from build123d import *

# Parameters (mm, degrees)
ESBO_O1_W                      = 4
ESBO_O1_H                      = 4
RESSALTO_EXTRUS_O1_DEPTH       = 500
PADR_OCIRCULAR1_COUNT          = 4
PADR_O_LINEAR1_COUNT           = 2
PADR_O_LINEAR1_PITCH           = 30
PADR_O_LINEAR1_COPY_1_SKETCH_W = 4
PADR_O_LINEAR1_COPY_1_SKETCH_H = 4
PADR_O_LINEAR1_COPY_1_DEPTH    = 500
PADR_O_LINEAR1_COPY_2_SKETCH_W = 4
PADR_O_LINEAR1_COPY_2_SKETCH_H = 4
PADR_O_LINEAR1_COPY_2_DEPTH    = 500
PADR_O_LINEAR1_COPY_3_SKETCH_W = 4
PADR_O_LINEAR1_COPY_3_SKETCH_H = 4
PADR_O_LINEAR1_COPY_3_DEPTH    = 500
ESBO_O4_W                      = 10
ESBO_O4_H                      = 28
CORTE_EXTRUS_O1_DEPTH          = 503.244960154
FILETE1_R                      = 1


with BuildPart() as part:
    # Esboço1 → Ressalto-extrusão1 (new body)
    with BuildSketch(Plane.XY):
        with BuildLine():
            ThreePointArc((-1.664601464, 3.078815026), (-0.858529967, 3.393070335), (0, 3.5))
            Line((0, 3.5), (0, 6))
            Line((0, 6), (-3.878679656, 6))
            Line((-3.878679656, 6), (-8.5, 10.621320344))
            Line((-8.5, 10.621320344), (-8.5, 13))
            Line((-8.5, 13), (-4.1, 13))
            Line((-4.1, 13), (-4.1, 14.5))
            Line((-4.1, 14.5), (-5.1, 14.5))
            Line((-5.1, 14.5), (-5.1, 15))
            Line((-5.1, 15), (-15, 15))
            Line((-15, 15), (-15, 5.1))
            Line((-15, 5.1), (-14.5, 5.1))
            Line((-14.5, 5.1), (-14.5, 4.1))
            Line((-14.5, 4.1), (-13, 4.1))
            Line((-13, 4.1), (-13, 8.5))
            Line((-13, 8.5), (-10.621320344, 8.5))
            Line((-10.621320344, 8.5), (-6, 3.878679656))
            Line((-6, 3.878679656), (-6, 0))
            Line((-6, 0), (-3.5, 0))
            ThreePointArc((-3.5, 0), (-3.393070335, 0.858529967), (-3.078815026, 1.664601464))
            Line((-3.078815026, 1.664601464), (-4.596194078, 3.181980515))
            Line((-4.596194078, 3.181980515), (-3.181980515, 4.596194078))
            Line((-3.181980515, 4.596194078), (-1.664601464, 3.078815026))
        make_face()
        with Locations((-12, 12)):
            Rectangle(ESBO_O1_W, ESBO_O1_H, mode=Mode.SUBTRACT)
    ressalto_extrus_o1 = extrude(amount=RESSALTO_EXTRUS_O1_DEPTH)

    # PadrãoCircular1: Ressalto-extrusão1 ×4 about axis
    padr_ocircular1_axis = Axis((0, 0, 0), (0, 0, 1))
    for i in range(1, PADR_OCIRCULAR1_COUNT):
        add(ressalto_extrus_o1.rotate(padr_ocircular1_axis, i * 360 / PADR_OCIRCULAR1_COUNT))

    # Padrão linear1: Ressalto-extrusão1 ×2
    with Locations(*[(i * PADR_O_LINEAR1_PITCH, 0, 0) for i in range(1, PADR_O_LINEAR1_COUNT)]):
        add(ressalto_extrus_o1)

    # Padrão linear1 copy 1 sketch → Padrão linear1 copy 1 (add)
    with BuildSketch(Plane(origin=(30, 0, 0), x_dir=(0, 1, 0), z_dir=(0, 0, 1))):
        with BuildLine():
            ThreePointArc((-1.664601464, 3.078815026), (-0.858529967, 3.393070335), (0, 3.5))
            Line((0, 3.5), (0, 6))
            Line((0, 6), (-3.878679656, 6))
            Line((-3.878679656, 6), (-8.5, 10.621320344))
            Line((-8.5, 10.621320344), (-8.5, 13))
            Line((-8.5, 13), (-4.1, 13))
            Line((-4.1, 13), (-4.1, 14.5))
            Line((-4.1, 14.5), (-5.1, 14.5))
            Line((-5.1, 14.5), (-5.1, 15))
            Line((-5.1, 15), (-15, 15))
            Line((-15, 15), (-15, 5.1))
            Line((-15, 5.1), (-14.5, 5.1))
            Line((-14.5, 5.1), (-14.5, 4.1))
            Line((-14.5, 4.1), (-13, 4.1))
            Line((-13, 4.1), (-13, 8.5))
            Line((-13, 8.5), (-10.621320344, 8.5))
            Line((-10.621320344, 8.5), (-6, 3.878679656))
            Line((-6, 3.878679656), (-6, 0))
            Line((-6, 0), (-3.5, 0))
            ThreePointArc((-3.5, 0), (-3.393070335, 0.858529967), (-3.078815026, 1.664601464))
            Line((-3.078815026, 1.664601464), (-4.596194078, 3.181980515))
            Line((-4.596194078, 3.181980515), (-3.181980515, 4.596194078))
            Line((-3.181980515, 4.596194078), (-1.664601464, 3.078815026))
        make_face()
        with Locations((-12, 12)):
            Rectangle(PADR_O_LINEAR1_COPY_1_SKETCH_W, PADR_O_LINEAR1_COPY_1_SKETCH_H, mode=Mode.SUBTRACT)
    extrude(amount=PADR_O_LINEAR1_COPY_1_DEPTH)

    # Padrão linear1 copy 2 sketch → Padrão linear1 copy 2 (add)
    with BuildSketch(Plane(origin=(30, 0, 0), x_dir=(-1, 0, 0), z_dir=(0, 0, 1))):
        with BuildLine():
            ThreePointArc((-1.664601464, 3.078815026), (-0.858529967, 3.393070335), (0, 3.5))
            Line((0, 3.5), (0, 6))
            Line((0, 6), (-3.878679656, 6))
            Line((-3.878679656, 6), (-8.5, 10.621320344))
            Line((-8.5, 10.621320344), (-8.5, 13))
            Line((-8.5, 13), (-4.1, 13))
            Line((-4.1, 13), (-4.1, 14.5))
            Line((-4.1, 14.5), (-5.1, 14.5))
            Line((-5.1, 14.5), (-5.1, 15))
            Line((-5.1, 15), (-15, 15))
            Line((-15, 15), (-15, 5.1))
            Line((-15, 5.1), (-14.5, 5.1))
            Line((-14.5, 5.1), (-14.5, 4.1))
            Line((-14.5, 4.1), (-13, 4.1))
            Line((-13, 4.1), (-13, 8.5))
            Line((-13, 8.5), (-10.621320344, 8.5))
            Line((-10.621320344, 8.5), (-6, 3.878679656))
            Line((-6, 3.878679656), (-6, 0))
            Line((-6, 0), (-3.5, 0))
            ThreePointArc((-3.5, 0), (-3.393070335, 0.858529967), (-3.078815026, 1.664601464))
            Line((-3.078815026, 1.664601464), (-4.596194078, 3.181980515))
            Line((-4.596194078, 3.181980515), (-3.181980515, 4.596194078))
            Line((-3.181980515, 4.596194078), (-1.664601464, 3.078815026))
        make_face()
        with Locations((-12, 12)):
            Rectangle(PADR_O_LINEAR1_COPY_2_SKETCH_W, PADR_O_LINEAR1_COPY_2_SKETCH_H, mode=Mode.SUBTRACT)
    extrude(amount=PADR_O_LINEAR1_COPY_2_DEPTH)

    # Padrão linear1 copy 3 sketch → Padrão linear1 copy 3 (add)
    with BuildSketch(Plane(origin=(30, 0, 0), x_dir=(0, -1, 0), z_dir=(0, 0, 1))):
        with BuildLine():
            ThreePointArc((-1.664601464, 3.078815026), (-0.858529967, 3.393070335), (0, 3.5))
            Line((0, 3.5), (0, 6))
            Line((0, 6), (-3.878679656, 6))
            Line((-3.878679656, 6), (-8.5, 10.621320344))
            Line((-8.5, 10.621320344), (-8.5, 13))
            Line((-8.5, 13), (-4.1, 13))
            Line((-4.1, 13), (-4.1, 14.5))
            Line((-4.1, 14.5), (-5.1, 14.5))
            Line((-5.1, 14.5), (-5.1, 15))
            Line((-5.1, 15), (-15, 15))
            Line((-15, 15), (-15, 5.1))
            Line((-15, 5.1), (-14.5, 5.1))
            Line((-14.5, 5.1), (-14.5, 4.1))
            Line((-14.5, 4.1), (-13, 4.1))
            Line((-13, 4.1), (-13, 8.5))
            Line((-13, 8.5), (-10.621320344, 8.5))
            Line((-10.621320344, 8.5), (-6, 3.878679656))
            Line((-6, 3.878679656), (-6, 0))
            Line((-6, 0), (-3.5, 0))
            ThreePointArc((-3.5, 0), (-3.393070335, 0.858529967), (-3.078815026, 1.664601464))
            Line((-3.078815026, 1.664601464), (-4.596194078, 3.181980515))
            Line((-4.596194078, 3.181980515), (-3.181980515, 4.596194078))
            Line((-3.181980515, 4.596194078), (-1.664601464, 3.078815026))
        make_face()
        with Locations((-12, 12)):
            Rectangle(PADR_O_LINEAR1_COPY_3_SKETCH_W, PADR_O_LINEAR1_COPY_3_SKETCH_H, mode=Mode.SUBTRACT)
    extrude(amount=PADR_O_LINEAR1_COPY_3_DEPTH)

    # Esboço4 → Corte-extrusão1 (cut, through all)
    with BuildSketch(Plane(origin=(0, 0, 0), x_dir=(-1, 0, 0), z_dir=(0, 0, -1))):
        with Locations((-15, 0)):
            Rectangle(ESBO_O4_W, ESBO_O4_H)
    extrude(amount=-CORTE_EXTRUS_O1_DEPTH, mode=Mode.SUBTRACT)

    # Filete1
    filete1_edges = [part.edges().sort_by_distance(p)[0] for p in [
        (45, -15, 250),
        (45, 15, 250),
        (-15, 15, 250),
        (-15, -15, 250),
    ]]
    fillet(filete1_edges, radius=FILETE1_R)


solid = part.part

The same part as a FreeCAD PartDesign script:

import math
import FreeCAD as App
import Part
import Sketcher
from FreeCAD import Vector
Q = App.Units.Quantity


def edges_at(feature, points):
    """Names of the edges that pass closest to the given points."""
    edges = feature.Shape.Edges
    near = lambda p: min(range(len(edges)), key=lambda i: edges[i].distToShape(Part.Vertex(*p))[0])
    return sorted({f"Edge{near(p) + 1}" for p in points})

doc = App.newDocument("Part")
body = doc.addObject("PartDesign::Body", "Body")

# Sketch on XY plane
sketch1 = body.newObject("Sketcher::SketchObject", "Sketch")
sketch1.AttachmentSupport = (doc.getObject("XY_Plane"), [""])
sketch1.MapMode = "FlatFace"
sketch1.addGeometry([
    Part.ArcOfCircle(Part.Circle(Vector(0, 0, 0), Vector(0, 0, 1), 3.5), math.radians(90), math.radians(118)),  # 0
    Part.LineSegment(Vector(0, 3.5, 0), Vector(0, 6, 0)),  # 1
    Part.LineSegment(Vector(0, 6, 0), Vector(-3.9, 6, 0)),  # 2
    Part.LineSegment(Vector(-3.9, 6, 0), Vector(-8.5, 10.6, 0)),  # 3
    Part.LineSegment(Vector(-8.5, 10.6, 0), Vector(-8.5, 13, 0)),  # 4
    Part.LineSegment(Vector(-8.5, 13, 0), Vector(-4.1, 13, 0)),  # 5
    Part.LineSegment(Vector(-4.1, 13, 0), Vector(-4.1, 14.5, 0)),  # 6
    Part.LineSegment(Vector(-4.1, 14.5, 0), Vector(-5.1, 14.5, 0)),  # 7
    Part.LineSegment(Vector(-5.1, 14.5, 0), Vector(-5.1, 15, 0)),  # 8
    Part.LineSegment(Vector(-5.1, 15, 0), Vector(-15, 15, 0)),  # 9
    Part.LineSegment(Vector(-15, 15, 0), Vector(-15, 5.1, 0)),  # 10
    Part.LineSegment(Vector(-15, 5.1, 0), Vector(-14.5, 5.1, 0)),  # 11
    Part.LineSegment(Vector(-14.5, 5.1, 0), Vector(-14.5, 4.1, 0)),  # 12
    Part.LineSegment(Vector(-14.5, 4.1, 0), Vector(-13, 4.1, 0)),  # 13
    Part.LineSegment(Vector(-13, 4.1, 0), Vector(-13, 8.5, 0)),  # 14
    Part.LineSegment(Vector(-13, 8.5, 0), Vector(-10.6, 8.5, 0)),  # 15
    Part.LineSegment(Vector(-10.6, 8.5, 0), Vector(-6, 3.9, 0)),  # 16
    Part.LineSegment(Vector(-6, 3.9, 0), Vector(-6, 0, 0)),  # 17
    Part.LineSegment(Vector(-6, 0, 0), Vector(-3.5, 0, 0)),  # 18
    Part.ArcOfCircle(Part.Circle(Vector(0, 0, 0), Vector(0, 0, 1), 3.5), math.radians(152), math.radians(180)),  # 19
    Part.LineSegment(Vector(-3.1, 1.7, 0), Vector(-4.6, 3.2, 0)),  # 20
    Part.LineSegment(Vector(-4.6, 3.2, 0), Vector(-3.2, 4.6, 0)),  # 21
    Part.LineSegment(Vector(-3.2, 4.6, 0), Vector(-1.7, 3.1, 0)),  # 22
    Part.LineSegment(Vector(-10, 10, 0), Vector(-14, 10, 0)),  # 23
    Part.LineSegment(Vector(-14, 10, 0), Vector(-14, 14, 0)),  # 24
    Part.LineSegment(Vector(-14, 14, 0), Vector(-10, 14, 0)),  # 25
    Part.LineSegment(Vector(-10, 14, 0), Vector(-10, 10, 0)),  # 26
], False)
sketch1.addConstraint([
    Sketcher.Constraint("Coincident", 0, 1, 1, 1),
    Sketcher.Constraint("Coincident", 1, 2, 2, 1),
    Sketcher.Constraint("Coincident", 2, 2, 3, 1),
    Sketcher.Constraint("Coincident", 3, 2, 4, 1),
    Sketcher.Constraint("Coincident", 4, 2, 5, 1),
    Sketcher.Constraint("Coincident", 5, 2, 6, 1),
    Sketcher.Constraint("Coincident", 6, 2, 7, 1),
    Sketcher.Constraint("Coincident", 7, 2, 8, 1),
    Sketcher.Constraint("Coincident", 8, 2, 9, 1),
    Sketcher.Constraint("Coincident", 9, 2, 10, 1),
    Sketcher.Constraint("Coincident", 10, 2, 11, 1),
    Sketcher.Constraint("Coincident", 11, 2, 12, 1),
    Sketcher.Constraint("Coincident", 12, 2, 13, 1),
    Sketcher.Constraint("Coincident", 13, 2, 14, 1),
    Sketcher.Constraint("Coincident", 14, 2, 15, 1),
    Sketcher.Constraint("Coincident", 15, 2, 16, 1),
    Sketcher.Constraint("Coincident", 16, 2, 17, 1),
    Sketcher.Constraint("Coincident", 17, 2, 18, 1),
    Sketcher.Constraint("Coincident", 18, 2, 19, 2),
    Sketcher.Constraint("Coincident", 19, 1, 20, 1),
    Sketcher.Constraint("Coincident", 20, 2, 21, 1),
    Sketcher.Constraint("Coincident", 21, 2, 22, 1),
    Sketcher.Constraint("Coincident", 22, 2, 0, 2),
    Sketcher.Constraint("Coincident", 23, 2, 24, 1),
    Sketcher.Constraint("Coincident", 24, 2, 25, 1),
    Sketcher.Constraint("Coincident", 25, 2, 26, 1),
    Sketcher.Constraint("Coincident", 26, 2, 23, 1),
    Sketcher.Constraint("Vertical", 1),
    Sketcher.Constraint("Horizontal", 2),
    Sketcher.Constraint("Vertical", 4),
    Sketcher.Constraint("Horizontal", 5),
    Sketcher.Constraint("Vertical", 6),
    Sketcher.Constraint("Horizontal", 7),
    Sketcher.Constraint("Vertical", 8),
    Sketcher.Constraint("Horizontal", 9),
    Sketcher.Constraint("Vertical", 10),
    Sketcher.Constraint("Horizontal", 11),
    Sketcher.Constraint("Vertical", 12),
    Sketcher.Constraint("Horizontal", 13),
    Sketcher.Constraint("Vertical", 14),
    Sketcher.Constraint("Horizontal", 15),
    Sketcher.Constraint("Vertical", 17),
    Sketcher.Constraint("Horizontal", 18),
    Sketcher.Constraint("Horizontal", 23),
    Sketcher.Constraint("Vertical", 24),
    Sketcher.Constraint("Horizontal", 25),
    Sketcher.Constraint("Vertical", 26),
    Sketcher.Constraint("Coincident", 0, 3, -1, 1),
    Sketcher.Constraint("Coincident", 19, 3, -1, 1),
    Sketcher.Constraint("Equal", 0, 19),
    Sketcher.Constraint("PointOnObject", 0, 1, -2),
    Sketcher.Constraint("PointOnObject", 17, 2, -1),
    Sketcher.Constraint("Parallel", 3, 16),
    Sketcher.Constraint("Parallel", 16, 20),
    Sketcher.Constraint("Perpendicular", 20, 21),
    Sketcher.Constraint("Perpendicular", 21, 22),
    Sketcher.Constraint("Equal", 18, 1),
    Sketcher.Constraint("Equal", 15, 4),
    Sketcher.Constraint("Equal", 13, 6),
    Sketcher.Constraint("Equal", 11, 8),
    Sketcher.Constraint("Equal", 9, 10),
    Sketcher.Constraint("Equal", 7, 12),
    Sketcher.Constraint("Equal", 5, 14),
    Sketcher.Constraint("Equal", 2, 17),
    Sketcher.Constraint("Equal", 25, 24),
    Sketcher.Constraint("Equal", 20, 22),
    Sketcher.Constraint("Radius", 0, Q("3.5 mm")),
    Sketcher.Constraint("DistanceX", 7, 2, 7, 1, Q("1 mm")),
    Sketcher.Constraint("DistanceX", 23, 2, 23, 1, Q("4 mm")),
    Sketcher.Constraint("Angle", 3, Q("135 deg")),
    Sketcher.Constraint("Distance", 21, Q("2 mm")),
    Sketcher.Constraint("DistanceX", 5, 1, 5, 2, Q("4.4 mm")),
    Sketcher.Constraint("DistanceX", 9, 2, 9, 1, Q("9.9 mm")),
    Sketcher.Constraint("DistanceX", 11, 1, 11, 2, Q("0.5 mm")),
    Sketcher.Constraint("DistanceX", 13, 1, 13, 2, Q("1.5 mm")),
    Sketcher.Constraint("DistanceX", 18, 1, 18, 2, Q("2.5 mm")),
    Sketcher.Constraint("DistanceY", -1, 1, 4, 2, Q("13 mm")),
    Sketcher.Constraint("DistanceX", 23, 2, -1, 1, Q("14 mm")),
    Sketcher.Constraint("DistanceY", -1, 1, 23, 2, Q("10 mm")),
    Sketcher.Constraint("Distance", 20, Q("2.145898 mm")),
    Sketcher.Constraint("DistanceX", 2, 2, 2, 1, Q("3.87868 mm")),
])
pad1 = body.newObject("PartDesign::Pad", "Pad")
pad1.Profile = sketch1
pad1.Length = 500
doc.recompute()

polarpattern = body.newObject("PartDesign::PolarPattern", "PolarPattern")
polarpattern.Originals = [pad1]
polarpattern.Axis = (doc.getObject("Z_Axis"), [""])
polarpattern.Angle = 360
polarpattern.Occurrences = 4
body.Tip = polarpattern
doc.recompute()

linearpattern = body.newObject("PartDesign::LinearPattern", "LinearPattern")
linearpattern.Originals = [pad1]
linearpattern.Direction = (doc.getObject("X_Axis"), [""])
linearpattern.Mode = "offset"
linearpattern.Offset = 30
linearpattern.Occurrences = 2
body.Tip = linearpattern

# Sketch on XY plane
sketch2 = body.newObject("Sketcher::SketchObject", "Sketch001")
sketch2.AttachmentSupport = (doc.getObject("XY_Plane"), [""])
sketch2.MapMode = "FlatFace"
sketch2.addGeometry([
    Part.ArcOfCircle(Part.Circle(Vector(30, 0, 0), Vector(0, 0, 1), 3.5), math.radians(180), math.radians(208)),  # 0
    Part.LineSegment(Vector(26.5, 0, 0), Vector(24, 0, 0)),  # 1
    Part.LineSegment(Vector(24, 0, 0), Vector(24, -3.9, 0)),  # 2
    Part.LineSegment(Vector(24, -3.9, 0), Vector(19.4, -8.5, 0)),  # 3
    Part.LineSegment(Vector(19.4, -8.5, 0), Vector(17, -8.5, 0)),  # 4
    Part.LineSegment(Vector(17, -8.5, 0), Vector(17, -4.1, 0)),  # 5
    Part.LineSegment(Vector(17, -4.1, 0), Vector(15.5, -4.1, 0)),  # 6
    Part.LineSegment(Vector(15.5, -4.1, 0), Vector(15.5, -5.1, 0)),  # 7
    Part.LineSegment(Vector(15.5, -5.1, 0), Vector(15, -5.1, 0)),  # 8
    Part.LineSegment(Vector(15, -5.1, 0), Vector(15, -15, 0)),  # 9
    Part.LineSegment(Vector(15, -15, 0), Vector(24.9, -15, 0)),  # 10
    Part.LineSegment(Vector(24.9, -15, 0), Vector(24.9, -14.5, 0)),  # 11
    Part.LineSegment(Vector(24.9, -14.5, 0), Vector(25.9, -14.5, 0)),  # 12
    Part.LineSegment(Vector(25.9, -14.5, 0), Vector(25.9, -13, 0)),  # 13
    Part.LineSegment(Vector(25.9, -13, 0), Vector(21.5, -13, 0)),  # 14
    Part.LineSegment(Vector(21.5, -13, 0), Vector(21.5, -10.6, 0)),  # 15
    Part.LineSegment(Vector(21.5, -10.6, 0), Vector(26.1, -6, 0)),  # 16
    Part.LineSegment(Vector(26.1, -6, 0), Vector(30, -6, 0)),  # 17
    Part.LineSegment(Vector(30, -6, 0), Vector(30, -3.5, 0)),  # 18
    Part.ArcOfCircle(Part.Circle(Vector(30, 0, 0), Vector(0, 0, 1), 3.5), math.radians(-118), math.radians(-90)),  # 19
    Part.LineSegment(Vector(28.3, -3.1, 0), Vector(26.8, -4.6, 0)),  # 20
    Part.LineSegment(Vector(26.8, -4.6, 0), Vector(25.4, -3.2, 0)),  # 21
    Part.LineSegment(Vector(25.4, -3.2, 0), Vector(26.9, -1.7, 0)),  # 22
    Part.LineSegment(Vector(20, -10, 0), Vector(20, -14, 0)),  # 23
    Part.LineSegment(Vector(20, -14, 0), Vector(16, -14, 0)),  # 24
    Part.LineSegment(Vector(16, -14, 0), Vector(16, -10, 0)),  # 25
    Part.LineSegment(Vector(16, -10, 0), Vector(20, -10, 0)),  # 26
], False)
sketch2.addConstraint([
    Sketcher.Constraint("Coincident", 0, 1, 1, 1),
    Sketcher.Constraint("Coincident", 1, 2, 2, 1),
    Sketcher.Constraint("Coincident", 2, 2, 3, 1),
    Sketcher.Constraint("Coincident", 3, 2, 4, 1),
    Sketcher.Constraint("Coincident", 4, 2, 5, 1),
    Sketcher.Constraint("Coincident", 5, 2, 6, 1),
    Sketcher.Constraint("Coincident", 6, 2, 7, 1),
    Sketcher.Constraint("Coincident", 7, 2, 8, 1),
    Sketcher.Constraint("Coincident", 8, 2, 9, 1),
    Sketcher.Constraint("Coincident", 9, 2, 10, 1),
    Sketcher.Constraint("Coincident", 10, 2, 11, 1),
    Sketcher.Constraint("Coincident", 11, 2, 12, 1),
    Sketcher.Constraint("Coincident", 12, 2, 13, 1),
    Sketcher.Constraint("Coincident", 13, 2, 14, 1),
    Sketcher.Constraint("Coincident", 14, 2, 15, 1),
    Sketcher.Constraint("Coincident", 15, 2, 16, 1),
    Sketcher.Constraint("Coincident", 16, 2, 17, 1),
    Sketcher.Constraint("Coincident", 17, 2, 18, 1),
    Sketcher.Constraint("Coincident", 18, 2, 19, 2),
    Sketcher.Constraint("Coincident", 19, 1, 20, 1),
    Sketcher.Constraint("Coincident", 20, 2, 21, 1),
    Sketcher.Constraint("Coincident", 21, 2, 22, 1),
    Sketcher.Constraint("Coincident", 22, 2, 0, 2),
    Sketcher.Constraint("Coincident", 23, 2, 24, 1),
    Sketcher.Constraint("Coincident", 24, 2, 25, 1),
    Sketcher.Constraint("Coincident", 25, 2, 26, 1),
    Sketcher.Constraint("Coincident", 26, 2, 23, 1),
    Sketcher.Constraint("Horizontal", 1),
    Sketcher.Constraint("Vertical", 2),
    Sketcher.Constraint("Horizontal", 4),
    Sketcher.Constraint("Vertical", 5),
    Sketcher.Constraint("Horizontal", 6),
    Sketcher.Constraint("Vertical", 7),
    Sketcher.Constraint("Horizontal", 8),
    Sketcher.Constraint("Vertical", 9),
    Sketcher.Constraint("Horizontal", 10),
    Sketcher.Constraint("Vertical", 11),
    Sketcher.Constraint("Horizontal", 12),
    Sketcher.Constraint("Vertical", 13),
    Sketcher.Constraint("Horizontal", 14),
    Sketcher.Constraint("Vertical", 15),
    Sketcher.Constraint("Horizontal", 17),
    Sketcher.Constraint("Vertical", 18),
    Sketcher.Constraint("Vertical", 23),
    Sketcher.Constraint("Horizontal", 24),
    Sketcher.Constraint("Vertical", 25),
    Sketcher.Constraint("Horizontal", 26),
    Sketcher.Constraint("Coincident", 19, 3, 0, 3),
    Sketcher.Constraint("Equal", 0, 19),
    Sketcher.Constraint("PointOnObject", 0, 3, -1),
    Sketcher.Constraint("PointOnObject", 0, 1, -1),
    Sketcher.Constraint("Parallel", 3, 16),
    Sketcher.Constraint("Parallel", 16, 20),
    Sketcher.Constraint("Perpendicular", 20, 21),
    Sketcher.Constraint("Perpendicular", 21, 22),
    Sketcher.Constraint("Vertical", 19, 3, 17, 2),
    Sketcher.Constraint("Equal", 17, 2),
    Sketcher.Constraint("Equal", 14, 5),
    Sketcher.Constraint("Equal", 12, 7),
    Sketcher.Constraint("Equal", 10, 9),
    Sketcher.Constraint("Equal", 8, 11),
    Sketcher.Constraint("Equal", 6, 13),
    Sketcher.Constraint("Equal", 4, 15),
    Sketcher.Constraint("Equal", 1, 18),
    Sketcher.Constraint("Equal", 26, 23),
    Sketcher.Constraint("Equal", 20, 22),
    Sketcher.Constraint("Radius", 0, Q("3.5 mm")),
    Sketcher.Constraint("DistanceX", 12, 1, 12, 2, Q("1 mm")),
    Sketcher.Constraint("DistanceX", 24, 2, 24, 1, Q("4 mm")),
    Sketcher.Constraint("Angle", 3, Q("-135 deg")),
    Sketcher.Constraint("Distance", 21, Q("2 mm")),
    Sketcher.Constraint("DistanceX", 1, 2, 1, 1, Q("2.5 mm")),
    Sketcher.Constraint("DistanceX", 6, 2, 6, 1, Q("1.5 mm")),
    Sketcher.Constraint("DistanceX", 8, 2, 8, 1, Q("0.5 mm")),
    Sketcher.Constraint("DistanceX", 10, 1, 10, 2, Q("9.9 mm")),
    Sketcher.Constraint("DistanceX", 14, 2, 14, 1, Q("4.4 mm")),
    Sketcher.Constraint("DistanceX", -1, 1, 0, 3, Q("30 mm")),
    Sketcher.Constraint("DistanceX", -1, 1, 4, 2, Q("17 mm")),
    Sketcher.Constraint("DistanceX", -1, 1, 23, 2, Q("20 mm")),
    Sketcher.Constraint("DistanceY", 23, 2, -1, 1, Q("14 mm")),
    Sketcher.Constraint("Distance", 20, Q("2.145898 mm")),
    Sketcher.Constraint("DistanceX", 4, 2, 4, 1, Q("2.37868 mm")),
])
pad2 = body.newObject("PartDesign::Pad", "Pad001")
pad2.Profile = sketch2
pad2.Length = 500

# Sketch on XY plane
sketch3 = body.newObject("Sketcher::SketchObject", "Sketch002")
sketch3.AttachmentSupport = (doc.getObject("XY_Plane"), [""])
sketch3.MapMode = "FlatFace"
sketch3.addGeometry([
    Part.ArcOfCircle(Part.Circle(Vector(30, 0, 0), Vector(0, 0, 1), 3.5), math.radians(-90), math.radians(-62)),  # 0
    Part.LineSegment(Vector(30, -3.5, 0), Vector(30, -6, 0)),  # 1
    Part.LineSegment(Vector(30, -6, 0), Vector(33.9, -6, 0)),  # 2
    Part.LineSegment(Vector(33.9, -6, 0), Vector(38.5, -10.6, 0)),  # 3
    Part.LineSegment(Vector(38.5, -10.6, 0), Vector(38.5, -13, 0)),  # 4
    Part.LineSegment(Vector(38.5, -13, 0), Vector(34.1, -13, 0)),  # 5
    Part.LineSegment(Vector(34.1, -13, 0), Vector(34.1, -14.5, 0)),  # 6
    Part.LineSegment(Vector(34.1, -14.5, 0), Vector(35.1, -14.5, 0)),  # 7
    Part.LineSegment(Vector(35.1, -14.5, 0), Vector(35.1, -15, 0)),  # 8
    Part.LineSegment(Vector(35.1, -15, 0), Vector(45, -15, 0)),  # 9
    Part.LineSegment(Vector(45, -15, 0), Vector(45, -5.1, 0)),  # 10
    Part.LineSegment(Vector(45, -5.1, 0), Vector(44.5, -5.1, 0)),  # 11
    Part.LineSegment(Vector(44.5, -5.1, 0), Vector(44.5, -4.1, 0)),  # 12
    Part.LineSegment(Vector(44.5, -4.1, 0), Vector(43, -4.1, 0)),  # 13
    Part.LineSegment(Vector(43, -4.1, 0), Vector(43, -8.5, 0)),  # 14
    Part.LineSegment(Vector(43, -8.5, 0), Vector(40.6, -8.5, 0)),  # 15
    Part.LineSegment(Vector(40.6, -8.5, 0), Vector(36, -3.9, 0)),  # 16
    Part.LineSegment(Vector(36, -3.9, 0), Vector(36, 0, 0)),  # 17
    Part.LineSegment(Vector(36, 0, 0), Vector(33.5, 0, 0)),  # 18
    Part.ArcOfCircle(Part.Circle(Vector(30, 0, 0), Vector(0, 0, 1), 3.5), math.radians(-28), math.radians(0)),  # 19
    Part.LineSegment(Vector(33.1, -1.7, 0), Vector(34.6, -3.2, 0)),  # 20
    Part.LineSegment(Vector(34.6, -3.2, 0), Vector(33.2, -4.6, 0)),  # 21
    Part.LineSegment(Vector(33.2, -4.6, 0), Vector(31.7, -3.1, 0)),  # 22
    Part.LineSegment(Vector(40, -10, 0), Vector(44, -10, 0)),  # 23
    Part.LineSegment(Vector(44, -10, 0), Vector(44, -14, 0)),  # 24
    Part.LineSegment(Vector(44, -14, 0), Vector(40, -14, 0)),  # 25
    Part.LineSegment(Vector(40, -14, 0), Vector(40, -10, 0)),  # 26
], False)
sketch3.addConstraint([
    Sketcher.Constraint("Coincident", 0, 1, 1, 1),
    Sketcher.Constraint("Coincident", 1, 2, 2, 1),
    Sketcher.Constraint("Coincident", 2, 2, 3, 1),
    Sketcher.Constraint("Coincident", 3, 2, 4, 1),
    Sketcher.Constraint("Coincident", 4, 2, 5, 1),
    Sketcher.Constraint("Coincident", 5, 2, 6, 1),
    Sketcher.Constraint("Coincident", 6, 2, 7, 1),
    Sketcher.Constraint("Coincident", 7, 2, 8, 1),
    Sketcher.Constraint("Coincident", 8, 2, 9, 1),
    Sketcher.Constraint("Coincident", 9, 2, 10, 1),
    Sketcher.Constraint("Coincident", 10, 2, 11, 1),
    Sketcher.Constraint("Coincident", 11, 2, 12, 1),
    Sketcher.Constraint("Coincident", 12, 2, 13, 1),
    Sketcher.Constraint("Coincident", 13, 2, 14, 1),
    Sketcher.Constraint("Coincident", 14, 2, 15, 1),
    Sketcher.Constraint("Coincident", 15, 2, 16, 1),
    Sketcher.Constraint("Coincident", 16, 2, 17, 1),
    Sketcher.Constraint("Coincident", 17, 2, 18, 1),
    Sketcher.Constraint("Coincident", 18, 2, 19, 2),
    Sketcher.Constraint("Coincident", 19, 1, 20, 1),
    Sketcher.Constraint("Coincident", 20, 2, 21, 1),
    Sketcher.Constraint("Coincident", 21, 2, 22, 1),
    Sketcher.Constraint("Coincident", 22, 2, 0, 2),
    Sketcher.Constraint("Coincident", 23, 2, 24, 1),
    Sketcher.Constraint("Coincident", 24, 2, 25, 1),
    Sketcher.Constraint("Coincident", 25, 2, 26, 1),
    Sketcher.Constraint("Coincident", 26, 2, 23, 1),
    Sketcher.Constraint("Vertical", 1),
    Sketcher.Constraint("Horizontal", 2),
    Sketcher.Constraint("Vertical", 4),
    Sketcher.Constraint("Horizontal", 5),
    Sketcher.Constraint("Vertical", 6),
    Sketcher.Constraint("Horizontal", 7),
    Sketcher.Constraint("Vertical", 8),
    Sketcher.Constraint("Horizontal", 9),
    Sketcher.Constraint("Vertical", 10),
    Sketcher.Constraint("Horizontal", 11),
    Sketcher.Constraint("Vertical", 12),
    Sketcher.Constraint("Horizontal", 13),
    Sketcher.Constraint("Vertical", 14),
    Sketcher.Constraint("Horizontal", 15),
    Sketcher.Constraint("Vertical", 17),
    Sketcher.Constraint("Horizontal", 18),
    Sketcher.Constraint("Horizontal", 23),
    Sketcher.Constraint("Vertical", 24),
    Sketcher.Constraint("Horizontal", 25),
    Sketcher.Constraint("Vertical", 26),
    Sketcher.Constraint("Coincident", 19, 3, 0, 3),
    Sketcher.Constraint("Equal", 0, 19),
    Sketcher.Constraint("PointOnObject", 0, 3, -1),
    Sketcher.Constraint("PointOnObject", 17, 2, -1),
    Sketcher.Constraint("Parallel", 3, 16),
    Sketcher.Constraint("Parallel", 16, 20),
    Sketcher.Constraint("Perpendicular", 20, 21),
    Sketcher.Constraint("Perpendicular", 21, 22),
    Sketcher.Constraint("Vertical", 19, 3, 0, 1),
    Sketcher.Constraint("Equal", 18, 1),
    Sketcher.Constraint("Equal", 15, 4),
    Sketcher.Constraint("Equal", 13, 6),
    Sketcher.Constraint("Equal", 11, 8),
    Sketcher.Constraint("Equal", 9, 10),
    Sketcher.Constraint("Equal", 7, 12),
    Sketcher.Constraint("Equal", 5, 14),
    Sketcher.Constraint("Equal", 2, 17),
    Sketcher.Constraint("Equal", 25, 24),
    Sketcher.Constraint("Equal", 20, 22),
    Sketcher.Constraint("Radius", 0, Q("3.5 mm")),
    Sketcher.Constraint("DistanceX", 7, 1, 7, 2, Q("1 mm")),
    Sketcher.Constraint("DistanceX", 23, 1, 23, 2, Q("4 mm")),
    Sketcher.Constraint("Angle", 3, Q("-45 deg")),
    Sketcher.Constraint("Distance", 21, Q("2 mm")),
    Sketcher.Constraint("DistanceX", 5, 2, 5, 1, Q("4.4 mm")),
    Sketcher.Constraint("DistanceX", 9, 1, 9, 2, Q("9.9 mm")),
    Sketcher.Constraint("DistanceX", 11, 2, 11, 1, Q("0.5 mm")),
    Sketcher.Constraint("DistanceX", 13, 2, 13, 1, Q("1.5 mm")),
    Sketcher.Constraint("DistanceX", 18, 2, 18, 1, Q("2.5 mm")),
    Sketcher.Constraint("DistanceX", -1, 1, 0, 3, Q("30 mm")),
    Sketcher.Constraint("DistanceY", 4, 2, -1, 1, Q("13 mm")),
    Sketcher.Constraint("DistanceX", -1, 1, 23, 2, Q("44 mm")),
    Sketcher.Constraint("DistanceY", 23, 2, -1, 1, Q("10 mm")),
    Sketcher.Constraint("Distance", 20, Q("2.145898 mm")),
    Sketcher.Constraint("DistanceX", 2, 1, 2, 2, Q("3.87868 mm")),
])
pad3 = body.newObject("PartDesign::Pad", "Pad002")
pad3.Profile = sketch3
pad3.Length = 500

# Sketch on XY plane
sketch4 = body.newObject("Sketcher::SketchObject", "Sketch003")
sketch4.AttachmentSupport = (doc.getObject("XY_Plane"), [""])
sketch4.MapMode = "FlatFace"
sketch4.addGeometry([
    Part.ArcOfCircle(Part.Circle(Vector(30, 0, 0), Vector(0, 0, 1), 3.5), math.radians(0), math.radians(28)),  # 0
    Part.LineSegment(Vector(33.5, 0, 0), Vector(36, 0, 0)),  # 1
    Part.LineSegment(Vector(36, 0, 0), Vector(36, 3.9, 0)),  # 2
    Part.LineSegment(Vector(36, 3.9, 0), Vector(40.6, 8.5, 0)),  # 3
    Part.LineSegment(Vector(40.6, 8.5, 0), Vector(43, 8.5, 0)),  # 4
    Part.LineSegment(Vector(43, 8.5, 0), Vector(43, 4.1, 0)),  # 5
    Part.LineSegment(Vector(43, 4.1, 0), Vector(44.5, 4.1, 0)),  # 6
    Part.LineSegment(Vector(44.5, 4.1, 0), Vector(44.5, 5.1, 0)),  # 7
    Part.LineSegment(Vector(44.5, 5.1, 0), Vector(45, 5.1, 0)),  # 8
    Part.LineSegment(Vector(45, 5.1, 0), Vector(45, 15, 0)),  # 9
    Part.LineSegment(Vector(45, 15, 0), Vector(35.1, 15, 0)),  # 10
    Part.LineSegment(Vector(35.1, 15, 0), Vector(35.1, 14.5, 0)),  # 11
    Part.LineSegment(Vector(35.1, 14.5, 0), Vector(34.1, 14.5, 0)),  # 12
    Part.LineSegment(Vector(34.1, 14.5, 0), Vector(34.1, 13, 0)),  # 13
    Part.LineSegment(Vector(34.1, 13, 0), Vector(38.5, 13, 0)),  # 14
    Part.LineSegment(Vector(38.5, 13, 0), Vector(38.5, 10.6, 0)),  # 15
    Part.LineSegment(Vector(38.5, 10.6, 0), Vector(33.9, 6, 0)),  # 16
    Part.LineSegment(Vector(33.9, 6, 0), Vector(30, 6, 0)),  # 17
    Part.LineSegment(Vector(30, 6, 0), Vector(30, 3.5, 0)),  # 18
    Part.ArcOfCircle(Part.Circle(Vector(30, 0, 0), Vector(0, 0, 1), 3.5), math.radians(62), math.radians(90)),  # 19
    Part.LineSegment(Vector(31.7, 3.1, 0), Vector(33.2, 4.6, 0)),  # 20
    Part.LineSegment(Vector(33.2, 4.6, 0), Vector(34.6, 3.2, 0)),  # 21
    Part.LineSegment(Vector(34.6, 3.2, 0), Vector(33.1, 1.7, 0)),  # 22
    Part.LineSegment(Vector(40, 10, 0), Vector(40, 14, 0)),  # 23
    Part.LineSegment(Vector(40, 14, 0), Vector(44, 14, 0)),  # 24
    Part.LineSegment(Vector(44, 14, 0), Vector(44, 10, 0)),  # 25
    Part.LineSegment(Vector(44, 10, 0), Vector(40, 10, 0)),  # 26
], False)
sketch4.addConstraint([
    Sketcher.Constraint("Coincident", 0, 1, 1, 1),
    Sketcher.Constraint("Coincident", 1, 2, 2, 1),
    Sketcher.Constraint("Coincident", 2, 2, 3, 1),
    Sketcher.Constraint("Coincident", 3, 2, 4, 1),
    Sketcher.Constraint("Coincident", 4, 2, 5, 1),
    Sketcher.Constraint("Coincident", 5, 2, 6, 1),
    Sketcher.Constraint("Coincident", 6, 2, 7, 1),
    Sketcher.Constraint("Coincident", 7, 2, 8, 1),
    Sketcher.Constraint("Coincident", 8, 2, 9, 1),
    Sketcher.Constraint("Coincident", 9, 2, 10, 1),
    Sketcher.Constraint("Coincident", 10, 2, 11, 1),
    Sketcher.Constraint("Coincident", 11, 2, 12, 1),
    Sketcher.Constraint("Coincident", 12, 2, 13, 1),
    Sketcher.Constraint("Coincident", 13, 2, 14, 1),
    Sketcher.Constraint("Coincident", 14, 2, 15, 1),
    Sketcher.Constraint("Coincident", 15, 2, 16, 1),
    Sketcher.Constraint("Coincident", 16, 2, 17, 1),
    Sketcher.Constraint("Coincident", 17, 2, 18, 1),
    Sketcher.Constraint("Coincident", 18, 2, 19, 2),
    Sketcher.Constraint("Coincident", 19, 1, 20, 1),
    Sketcher.Constraint("Coincident", 20, 2, 21, 1),
    Sketcher.Constraint("Coincident", 21, 2, 22, 1),
    Sketcher.Constraint("Coincident", 22, 2, 0, 2),
    Sketcher.Constraint("Coincident", 23, 2, 24, 1),
    Sketcher.Constraint("Coincident", 24, 2, 25, 1),
    Sketcher.Constraint("Coincident", 25, 2, 26, 1),
    Sketcher.Constraint("Coincident", 26, 2, 23, 1),
    Sketcher.Constraint("Horizontal", 1),
    Sketcher.Constraint("Vertical", 2),
    Sketcher.Constraint("Horizontal", 4),
    Sketcher.Constraint("Vertical", 5),
    Sketcher.Constraint("Horizontal", 6),
    Sketcher.Constraint("Vertical", 7),
    Sketcher.Constraint("Horizontal", 8),
    Sketcher.Constraint("Vertical", 9),
    Sketcher.Constraint("Horizontal", 10),
    Sketcher.Constraint("Vertical", 11),
    Sketcher.Constraint("Horizontal", 12),
    Sketcher.Constraint("Vertical", 13),
    Sketcher.Constraint("Horizontal", 14),
    Sketcher.Constraint("Vertical", 15),
    Sketcher.Constraint("Horizontal", 17),
    Sketcher.Constraint("Vertical", 18),
    Sketcher.Constraint("Vertical", 23),
    Sketcher.Constraint("Horizontal", 24),
    Sketcher.Constraint("Vertical", 25),
    Sketcher.Constraint("Horizontal", 26),
    Sketcher.Constraint("Coincident", 19, 3, 0, 3),
    Sketcher.Constraint("Equal", 0, 19),
    Sketcher.Constraint("PointOnObject", 0, 3, -1),
    Sketcher.Constraint("PointOnObject", 0, 1, -1),
    Sketcher.Constraint("Parallel", 3, 16),
    Sketcher.Constraint("Parallel", 16, 20),
    Sketcher.Constraint("Perpendicular", 20, 21),
    Sketcher.Constraint("Perpendicular", 21, 22),
    Sketcher.Constraint("Vertical", 19, 3, 17, 2),
    Sketcher.Constraint("Equal", 17, 2),
    Sketcher.Constraint("Equal", 14, 5),
    Sketcher.Constraint("Equal", 12, 7),
    Sketcher.Constraint("Equal", 10, 9),
    Sketcher.Constraint("Equal", 8, 11),
    Sketcher.Constraint("Equal", 6, 13),
    Sketcher.Constraint("Equal", 4, 15),
    Sketcher.Constraint("Equal", 1, 18),
    Sketcher.Constraint("Equal", 26, 23),
    Sketcher.Constraint("Equal", 20, 22),
    Sketcher.Constraint("Radius", 0, Q("3.5 mm")),
    Sketcher.Constraint("DistanceX", 12, 2, 12, 1, Q("1 mm")),
    Sketcher.Constraint("DistanceX", 24, 1, 24, 2, Q("4 mm")),
    Sketcher.Constraint("Angle", 3, Q("45 deg")),
    Sketcher.Constraint("Distance", 21, Q("2 mm")),
    Sketcher.Constraint("DistanceX", 1, 1, 1, 2, Q("2.5 mm")),
    Sketcher.Constraint("DistanceX", 6, 1, 6, 2, Q("1.5 mm")),
    Sketcher.Constraint("DistanceX", 8, 1, 8, 2, Q("0.5 mm")),
    Sketcher.Constraint("DistanceX", 10, 2, 10, 1, Q("9.9 mm")),
    Sketcher.Constraint("DistanceX", 14, 1, 14, 2, Q("4.4 mm")),
    Sketcher.Constraint("DistanceX", -1, 1, 0, 3, Q("30 mm")),
    Sketcher.Constraint("DistanceX", -1, 1, 4, 2, Q("43 mm")),
    Sketcher.Constraint("DistanceX", -1, 1, 23, 2, Q("40 mm")),
    Sketcher.Constraint("DistanceY", -1, 1, 23, 2, Q("14 mm")),
    Sketcher.Constraint("Distance", 20, Q("2.145898 mm")),
    Sketcher.Constraint("DistanceX", 4, 1, 4, 2, Q("2.37868 mm")),
])
pad4 = body.newObject("PartDesign::Pad", "Pad003")
pad4.Profile = sketch4
pad4.Length = 500

# Sketch on XY plane
sketch5 = body.newObject("Sketcher::SketchObject", "Sketch004")
sketch5.AttachmentSupport = (doc.getObject("XY_Plane"), [""])
sketch5.MapMode = "FlatFace"
sketch5.addGeometry([
    Part.LineSegment(Vector(20, 14, 0), Vector(20, -14, 0)),
    Part.LineSegment(Vector(20, -14, 0), Vector(10, -14, 0)),
    Part.LineSegment(Vector(10, -14, 0), Vector(10, 14, 0)),
    Part.LineSegment(Vector(10, 14, 0), Vector(20, 14, 0)),
], False)
sketch5.addConstraint([
    Sketcher.Constraint("Coincident", 0, 2, 1, 1),
    Sketcher.Constraint("Coincident", 1, 2, 2, 1),
    Sketcher.Constraint("Coincident", 2, 2, 3, 1),
    Sketcher.Constraint("Coincident", 3, 2, 0, 1),
    Sketcher.Constraint("Vertical", 0),
    Sketcher.Constraint("Horizontal", 1),
    Sketcher.Constraint("Vertical", 2),
    Sketcher.Constraint("Horizontal", 3),
    Sketcher.Constraint("DistanceX", 1, 2, 1, 1, Q("10 mm")),
    Sketcher.Constraint("DistanceY", 0, 2, 0, 1, Q("28 mm")),
    Sketcher.Constraint("DistanceX", -1, 1, 0, 2, Q("20 mm")),
    Sketcher.Constraint("DistanceY", 0, 2, -1, 1, Q("14 mm")),
])
pocket1 = body.newObject("PartDesign::Pocket", "Pocket")
pocket1.Profile = sketch5
pocket1.Type = "ThroughAll"
pocket1.Reversed = True
doc.recompute()

fillet = body.newObject("PartDesign::Fillet", "Fillet")
fillet.Base = (pocket1, edges_at(pocket1, [
    (45, -15, 250),
    (45, 15, 250),
    (-15, 15, 250),
    (-15, -15, 250),
]))
fillet.Radius = 1

doc.recompute()
